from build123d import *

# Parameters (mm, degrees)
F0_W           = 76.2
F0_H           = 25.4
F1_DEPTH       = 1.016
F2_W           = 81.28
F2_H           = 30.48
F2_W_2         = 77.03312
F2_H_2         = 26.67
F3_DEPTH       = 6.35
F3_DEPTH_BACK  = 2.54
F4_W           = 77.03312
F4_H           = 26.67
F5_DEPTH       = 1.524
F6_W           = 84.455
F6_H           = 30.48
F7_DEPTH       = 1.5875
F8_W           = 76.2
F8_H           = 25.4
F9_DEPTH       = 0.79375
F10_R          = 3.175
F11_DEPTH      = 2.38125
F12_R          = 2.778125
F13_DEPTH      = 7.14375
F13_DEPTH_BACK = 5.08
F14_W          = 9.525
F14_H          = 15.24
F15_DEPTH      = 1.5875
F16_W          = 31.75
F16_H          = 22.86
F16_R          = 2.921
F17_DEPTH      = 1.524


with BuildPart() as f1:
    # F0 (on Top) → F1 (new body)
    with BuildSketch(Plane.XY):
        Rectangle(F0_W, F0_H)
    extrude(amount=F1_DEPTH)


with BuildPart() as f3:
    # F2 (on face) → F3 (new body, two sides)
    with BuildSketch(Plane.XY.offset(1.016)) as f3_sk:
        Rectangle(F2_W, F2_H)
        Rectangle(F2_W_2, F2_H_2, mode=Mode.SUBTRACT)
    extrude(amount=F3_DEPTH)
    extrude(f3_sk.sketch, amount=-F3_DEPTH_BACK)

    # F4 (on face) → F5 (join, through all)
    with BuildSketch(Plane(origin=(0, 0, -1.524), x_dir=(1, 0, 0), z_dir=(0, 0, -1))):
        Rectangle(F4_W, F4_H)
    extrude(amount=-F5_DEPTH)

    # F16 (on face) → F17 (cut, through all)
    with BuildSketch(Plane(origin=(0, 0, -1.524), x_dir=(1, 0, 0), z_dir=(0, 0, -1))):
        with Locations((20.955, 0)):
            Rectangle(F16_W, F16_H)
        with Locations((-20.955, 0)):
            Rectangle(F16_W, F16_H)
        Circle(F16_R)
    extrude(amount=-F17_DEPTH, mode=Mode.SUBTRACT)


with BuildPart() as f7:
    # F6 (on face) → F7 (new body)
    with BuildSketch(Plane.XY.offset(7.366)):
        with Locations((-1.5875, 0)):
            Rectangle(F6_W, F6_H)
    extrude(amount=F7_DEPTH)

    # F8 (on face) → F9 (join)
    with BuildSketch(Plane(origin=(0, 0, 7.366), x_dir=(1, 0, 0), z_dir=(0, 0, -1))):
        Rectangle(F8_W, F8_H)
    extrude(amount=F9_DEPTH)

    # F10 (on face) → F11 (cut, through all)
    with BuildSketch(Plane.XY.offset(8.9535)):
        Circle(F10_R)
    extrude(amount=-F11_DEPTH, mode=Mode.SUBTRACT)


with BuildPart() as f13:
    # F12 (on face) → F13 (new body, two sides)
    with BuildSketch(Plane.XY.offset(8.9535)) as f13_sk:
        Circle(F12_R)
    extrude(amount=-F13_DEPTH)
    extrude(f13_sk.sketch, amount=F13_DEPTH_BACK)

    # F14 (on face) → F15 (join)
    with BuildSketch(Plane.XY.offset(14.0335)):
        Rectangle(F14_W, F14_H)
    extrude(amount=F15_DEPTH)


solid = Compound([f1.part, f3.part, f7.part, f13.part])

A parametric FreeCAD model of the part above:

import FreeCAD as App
import Part
import Sketcher

V = App.Vector
Q = App.Units.Quantity


def add_polygon(sketch, points):
    """Adds a closed chain of lines whose ends are joined by coincident constraints."""
    first, n = sketch.GeometryCount, len(points)
    for a, b in zip(points, points[1:] + points[:1]):
        sketch.addGeometry(Part.LineSegment(App.Vector(*a, 0), App.Vector(*b, 0)), False)
    for i in range(n):
        sketch.addConstraint(Sketcher.Constraint("Coincident", first + i, 2, first + (i + 1) % n, 1))

doc = App.newDocument("Part")
body = doc.addObject("PartDesign::Body", "Body")

# Sketch on XY plane
sketch1 = body.newObject("Sketcher::SketchObject", "Sketch")
sketch1.AttachmentSupport = (doc.getObject("XY_Plane"), [""])
sketch1.MapMode = "FlatFace"
add_polygon(sketch1, [(-38.1, 12.7), (-38.1, -12.7), (38.1, -12.7), (38.1, 12.7)])  # lines 0-3
sketch1.addConstraint([
    Sketcher.Constraint("Vertical", 0),
    Sketcher.Constraint("Horizontal", 1),
    Sketcher.Constraint("Vertical", 2),
    Sketcher.Constraint("Horizontal", 3),
    Sketcher.Constraint("Symmetric", 0, 2, 2, 2, -1, 1),
    Sketcher.Constraint("DistanceX", 1, 1, 1, 2, Q("3 in")),
    Sketcher.Constraint("DistanceY", 0, 2, 0, 1, Q("1 in")),
])
pad1 = body.newObject("PartDesign::Pad", "Pad")
pad1.Profile = sketch1
pad1.Length = Q("0.04 in")
body2 = doc.addObject("PartDesign::Body", "Body001")

# Sketch on XY plane
sketch2 = body2.newObject("Sketcher::SketchObject", "Sketch001")
sketch2.AttachmentSupport = (doc.getObject("XY_Plane001"), [""])
sketch2.MapMode = "FlatFace"
sketch2.AttachmentOffset = App.Placement(V(0, 0, 0.04 * 25.4), App.Rotation())
add_polygon(sketch2, [(-40.64, 15.24), (-40.64, -15.24), (40.64, -15.24), (40.64, 15.24)])  # lines 0-3
add_polygon(sketch2, [(38.51656, -13.335), (-38.51656, -13.335), (-38.51656, 13.335), (38.51656, 13.335)])  # lines 4-7
sketch2.addConstraint([
    Sketcher.Constraint("Vertical", 0),
    Sketcher.Constraint("Horizontal", 1),
    Sketcher.Constraint("Vertical", 2),
    Sketcher.Constraint("Horizontal", 3),
    Sketcher.Constraint("Horizontal", 4),
    Sketcher.Constraint("Vertical", 5),
    Sketcher.Constraint("Horizontal", 6),
    Sketcher.Constraint("Vertical", 7),
    Sketcher.Constraint("Symmetric", 0, 2, 2, 2, -1, 1),
    Sketcher.Constraint("Symmetric", 4, 2, 6, 2, -1, 1),
    Sketcher.Constraint("DistanceX", 1, 1, 1, 2, Q("3.2 in")),
    Sketcher.Constraint("DistanceY", 0, 2, 0, 1, Q("1.2 in")),
    Sketcher.Constraint("DistanceY", 5, 1, 5, 2, Q("1.05 in")),
    Sketcher.Constraint("DistanceX", 4, 2, 4, 1, Q("3.0328 in")),
])
pad2 = body2.newObject("PartDesign::Pad", "Pad001")
pad2.Profile = sketch2
pad2.Type = "TwoLengths"
pad2.Length = Q("0.25 in")
pad2.Length2 = Q("0.1 in")

# Sketch on XY plane
sketch3 = body2.newObject("Sketcher::SketchObject", "Sketch002")
sketch3.AttachmentSupport = (doc.getObject("XY_Plane001"), [""])
sketch3.MapMode = "FlatFace"
sketch3.AttachmentOffset = App.Placement(V(0, 0, -0.06 * 25.4), App.Rotation())
add_polygon(sketch3, [(-38.51656, -13.335), (-38.51656, 13.335), (38.51656, 13.335), (38.51656, -13.335)])  # lines 0-3
sketch3.addConstraint([
    Sketcher.Constraint("Vertical", 0),
    Sketcher.Constraint("Horizontal", 1),
    Sketcher.Constraint("Vertical", 2),
    Sketcher.Constraint("Horizontal", 3),
    Sketcher.Constraint("Symmetric", 0, 2, 2, 2, -1, 1),
    Sketcher.Constraint("DistanceY", 0, 1, 0, 2, Q("1.05 in")),
    Sketcher.Constraint("DistanceX", 1, 1, 1, 2, Q("3.0328 in")),
])
pad3 = body2.newObject("PartDesign::Pad", "Pad002")
pad3.Profile = sketch3
pad3.Length = Q("0.06 in")

# Sketch on XY plane
sketch4 = body2.newObject("Sketcher::SketchObject", "Sketch003")
sketch4.AttachmentSupport = (doc.getObject("XY_Plane001"), [""])
sketch4.MapMode = "FlatFace"
sketch4.AttachmentOffset = App.Placement(V(0, 0, -0.06 * 25.4), App.Rotation())
add_polygon(sketch4, [(5.08, -11.43), (5.08, 11.43), (36.83, 11.43), (36.83, -11.43)])  # lines 0-3
add_polygon(sketch4, [(-36.83, -11.43), (-36.83, 11.43), (-5.08, 11.43), (-5.08, -11.43)])  # lines 4-7
sketch4.addGeometry(Part.Circle(V(0, 0, 0), V(0, 0, 1), 2.921), False)  # 8
sketch4.addConstraint([
    Sketcher.Constraint("Vertical", 0),
    Sketcher.Constraint("Horizontal", 1),
    Sketcher.Constraint("Vertical", 2),
    Sketcher.Constraint("Horizontal", 3),
    Sketcher.Constraint("Vertical", 4),
    Sketcher.Constraint("Horizontal", 5),
    Sketcher.Constraint("Vertical", 6),
    Sketcher.Constraint("Horizontal", 7),
    Sketcher.Constraint("Coincident", 8, 3, -1, 1),
    Sketcher.Constraint("Symmetric", 2, 2, 4, 2, -1, 1),
    Sketcher.Constraint("Symmetric", 0, 2, 6, 2, -1, 1),
    Sketcher.Constraint("Horizontal", 1, 2, 4, 2),
    Sketcher.Constraint("Diameter", 8, Q("0.23 in")),
    Sketcher.Constraint("DistanceY", 0, 1, 0, 2, Q("0.9 in")),
    Sketcher.Constraint("DistanceX", 1, 1, 1, 2, Q("1.25 in")),
    Sketcher.Constraint("DistanceX", -1, 1, 0, 2, Q("0.2 in")),
])
pocket1 = body2.newObject("PartDesign::Pocket", "Pocket")
pocket1.Profile = sketch4
pocket1.Type = "ThroughAll"
pocket1.Reversed = True
body3 = doc.addObject("PartDesign::Body", "Body002")

# Sketch on XY plane
sketch5 = body3.newObject("Sketcher::SketchObject", "Sketch004")
sketch5.AttachmentSupport = (doc.getObject("XY_Plane002"), [""])
sketch5.MapMode = "FlatFace"
sketch5.AttachmentOffset = App.Placement(V(0, 0, 0.29 * 25.4), App.Rotation())
add_polygon(sketch5, [(-43.815, 15.24), (-43.815, -15.24), (40.64, -15.24), (40.64, 15.24)])  # lines 0-3
sketch5.addConstraint([
    Sketcher.Constraint("Vertical", 0),
    Sketcher.Constraint("Horizontal", 1),
    Sketcher.Constraint("Vertical", 2),
    Sketcher.Constraint("Horizontal", 3),
    Sketcher.Constraint("DistanceY", 0, 2, 0, 1, Q("1.2 in")),
    Sketcher.Constraint("DistanceY", 0, 2, -1, 1, Q("0.6 in")),
    Sketcher.Constraint("DistanceX", -1, 1, 1, 2, Q("1.6 in")),
    Sketcher.Constraint("DistanceX", 1, 1, 1, 2, Q("3.325 in")),
])
pad4 = body3.newObject("PartDesign::Pad", "Pad003")
pad4.Profile = sketch5
pad4.Length = Q("0.0625 in")

# Sketch on XY plane
sketch6 = body3.newObject("Sketcher::SketchObject", "Sketch005")
sketch6.AttachmentSupport = (doc.getObject("XY_Plane002"), [""])
sketch6.MapMode = "FlatFace"
sketch6.AttachmentOffset = App.Placement(V(0, 0, 0.29 * 25.4), App.Rotation())
add_polygon(sketch6, [(-38.1, -12.7), (-38.1, 12.7), (38.1, 12.7), (38.1, -12.7)])  # lines 0-3
sketch6.addConstraint([
    Sketcher.Constraint("Vertical", 0),
    Sketcher.Constraint("Horizontal", 1),
    Sketcher.Constraint("Vertical", 2),
    Sketcher.Constraint("Horizontal", 3),
    Sketcher.Constraint("Symmetric", 0, 2, 2, 2, -1, 1),
    Sketcher.Constraint("DistanceX", 1, 1, 1, 2, Q("3 in")),
    Sketcher.Constraint("DistanceY", 0, 1, 0, 2, Q("1 in")),
])
pad5 = body3.newObject("PartDesign::Pad", "Pad004")
pad5.Profile = sketch6
pad5.Length = Q("0.03125 in")
pad5.Reversed = True

# Sketch on XY plane
sketch7 = body3.newObject("Sketcher::SketchObject", "Sketch006")
sketch7.AttachmentSupport = (doc.getObject("XY_Plane002"), [""])
sketch7.MapMode = "FlatFace"
sketch7.AttachmentOffset = App.Placement(V(0, 0, 0.3525 * 25.4), App.Rotation())
sketch7.addGeometry(Part.Circle(V(0, 0, 0), V(0, 0, 1), 3.175), False)
sketch7.addConstraint([
    Sketcher.Constraint("Coincident", 0, 3, -1, 1),
    Sketcher.Constraint("Diameter", 0, Q("0.25 in")),
])
pocket2 = body3.newObject("PartDesign::Pocket", "Pocket001")
pocket2.Profile = sketch7
pocket2.Type = "ThroughAll"
body4 = doc.addObject("PartDesign::Body", "Body003")

# Sketch on XY plane
sketch8 = body4.newObject("Sketcher::SketchObject", "Sketch007")
sketch8.AttachmentSupport = (doc.getObject("XY_Plane003"), [""])
sketch8.MapMode = "FlatFace"
sketch8.AttachmentOffset = App.Placement(V(0, 0, 0.3525 * 25.4), App.Rotation())
sketch8.addGeometry(Part.Circle(V(0, 0, 0), V(0, 0, 1), 2.778125), False)
sketch8.addConstraint([
    Sketcher.Constraint("Coincident", 0, 3, -1, 1),
    Sketcher.Constraint("Diameter", 0, Q("0.21875 in")),
])
pad6 = body4.newObject("PartDesign::Pad", "Pad005")
pad6.Profile = sketch8
pad6.Type = "TwoLengths"
pad6.Length = Q("0.28125 in")
pad6.Length2 = Q("0.2 in")
pad6.Reversed = True

# Sketch on XY plane
sketch9 = body4.newObject("Sketcher::SketchObject", "Sketch008")
sketch9.AttachmentSupport = (doc.getObject("XY_Plane003"), [""])
sketch9.MapMode = "FlatFace"
sketch9.AttachmentOffset = App.Placement(V(0, 0, 0.5525 * 25.4), App.Rotation())
add_polygon(sketch9, [(-4.7625, 7.62), (-4.7625, -7.62), (4.7625, -7.62), (4.7625, 7.62)])  # lines 0-3
sketch9.addConstraint([
    Sketcher.Constraint("Vertical", 0),
    Sketcher.Constraint("Horizontal", 1),
    Sketcher.Constraint("Vertical", 2),
    Sketcher.Constraint("Horizontal", 3),
    Sketcher.Constraint("Symmetric", 0, 2, 2, 2, -1, 1),
    Sketcher.Constraint("DistanceY", 0, 2, 0, 1, Q("0.6 in")),
    Sketcher.Constraint("DistanceX", 1, 1, 1, 2, Q("0.375 in")),
])
pad7 = body4.newObject("PartDesign::Pad", "Pad006")
pad7.Profile = sketch9
pad7.Length = Q("0.0625 in")

doc.recompute()
